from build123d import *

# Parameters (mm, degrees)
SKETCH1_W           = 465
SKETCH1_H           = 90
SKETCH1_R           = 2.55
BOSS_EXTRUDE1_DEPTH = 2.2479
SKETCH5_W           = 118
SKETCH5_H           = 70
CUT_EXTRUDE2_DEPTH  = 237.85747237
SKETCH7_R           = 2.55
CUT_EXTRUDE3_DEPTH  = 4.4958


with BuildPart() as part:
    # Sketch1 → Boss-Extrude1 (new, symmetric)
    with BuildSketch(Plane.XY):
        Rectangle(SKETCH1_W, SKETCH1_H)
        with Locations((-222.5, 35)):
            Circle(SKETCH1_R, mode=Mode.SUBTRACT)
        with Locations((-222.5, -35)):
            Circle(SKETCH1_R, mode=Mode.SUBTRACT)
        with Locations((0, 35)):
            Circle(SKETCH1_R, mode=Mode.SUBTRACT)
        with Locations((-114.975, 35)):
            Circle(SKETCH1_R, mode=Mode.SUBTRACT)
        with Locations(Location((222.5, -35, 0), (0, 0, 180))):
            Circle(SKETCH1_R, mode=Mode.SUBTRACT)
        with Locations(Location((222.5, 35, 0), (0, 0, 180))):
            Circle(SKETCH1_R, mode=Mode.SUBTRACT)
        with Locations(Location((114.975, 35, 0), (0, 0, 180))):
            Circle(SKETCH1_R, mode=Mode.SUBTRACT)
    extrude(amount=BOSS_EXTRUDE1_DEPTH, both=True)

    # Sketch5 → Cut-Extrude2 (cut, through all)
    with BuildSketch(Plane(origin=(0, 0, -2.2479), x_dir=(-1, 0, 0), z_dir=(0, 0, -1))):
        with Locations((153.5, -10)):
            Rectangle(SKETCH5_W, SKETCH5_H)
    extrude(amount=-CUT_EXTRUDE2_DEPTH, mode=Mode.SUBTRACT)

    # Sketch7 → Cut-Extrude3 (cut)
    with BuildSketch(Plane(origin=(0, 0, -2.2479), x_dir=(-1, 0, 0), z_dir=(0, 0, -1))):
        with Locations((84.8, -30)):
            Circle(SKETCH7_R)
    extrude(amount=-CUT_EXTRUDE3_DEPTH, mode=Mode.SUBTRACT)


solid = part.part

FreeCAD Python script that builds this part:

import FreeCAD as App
import Part
import Sketcher


def add_polygon(sketch, points):
    """Adds a closed chain of lines whose ends are joined by coincident constraints."""
    first, n = sketch.GeometryCount, len(points)
    for a, b in zip(points, points[1:] + points[:1]):
        sketch.addGeometry(Part.LineSegment(App.Vector(*a, 0), App.Vector(*b, 0)), False)
    for i in range(n):
        sketch.addConstraint(Sketcher.Constraint("Coincident", first + i, 2, first + (i + 1) % n, 1))

doc = App.newDocument("Part")
body = doc.addObject("PartDesign::Body", "Body")

# Sketch on XY plane
sketch1 = body.newObject("Sketcher::SketchObject", "Sketch")
sketch1.AttachmentSupport = (doc.getObject("XY_Plane"), [""])
sketch1.MapMode = "FlatFace"
add_polygon(sketch1, [(-232.5, 45), (-232.5, -45), (232.5, -45), (232.5, 45)])  # lines 0-3
sketch1.addGeometry(Part.Circle(App.Vector(-222.5, -35, 0), App.Vector(0, 0, 1), 2.55), False)  # 4
sketch1.addGeometry(Part.Circle(App.Vector(222.5, -35, 0), App.Vector(0, 0, 1), 2.55), False)  # 5
sketch1.addGeometry(Part.Circle(App.Vector(-222.5, 35, 0), App.Vector(0, 0, 1), 2.55), False)  # 6
sketch1.addGeometry(Part.Circle(App.Vector(-114.975, 35, 0), App.Vector(0, 0, 1), 2.55), False)  # 7
sketch1.addGeometry(Part.Circle(App.Vector(0, 35, 0), App.Vector(0, 0, 1), 2.55), False)  # 8
sketch1.addGeometry(Part.Circle(App.Vector(114.975, 35, 0), App.Vector(0, 0, 1), 2.55), False)  # 9
sketch1.addGeometry(Part.Circle(App.Vector(222.5, 35, 0), App.Vector(0, 0, 1), 2.55), False)  # 10
sketch1.addConstraint([
    Sketcher.Constraint("Vertical", 0),
    Sketcher.Constraint("Horizontal", 1),
    Sketcher.Constraint("Vertical", 2),
    Sketcher.Constraint("Horizontal", 3),
    Sketcher.Constraint("Equal", 4, 5),
    Sketcher.Constraint("Equal", 5, 6),
    Sketcher.Constraint("Equal", 6, 7),
    Sketcher.Constraint("Equal", 7, 8),
    Sketcher.Constraint("Equal", 8, 9),
    Sketcher.Constraint("Equal", 9, 10),
    Sketcher.Constraint("Symmetric", 5, 3, 6, 3, -1, 1),
    Sketcher.Constraint("Symmetric", 4, 3, 10, 3, -1, 1),
    Sketcher.Constraint("Symmetric", 0, 2, 2, 2, -1, 1),
    Sketcher.Constraint("Symmetric", 4, 3, 5, 3, -2),
    Sketcher.Constraint("Symmetric", 7, 3, 9, 3, -2),
    Sketcher.Constraint("PointOnObject", 8, 3, -2),
    Sketcher.Constraint("Horizontal", 6, 3, 7, 3),
    Sketcher.Constraint("Horizontal", 7, 3, 8, 3),
    Sketcher.Constraint("Diameter", 4, 5.1),
    Sketcher.Constraint("DistanceX", 1, 1, 1, 2, 465.0),
    Sketcher.Constraint("DistanceY", 0, 2, 0, 1, 90.0),
    Sketcher.Constraint("DistanceY", 4, 3, -1, 1, 35.0),
    Sketcher.Constraint("DistanceX", 4, 3, 5, 3, 445.0),
    Sketcher.Constraint("DistanceX", 7, 3, 9, 3, 229.95),
])
pad1 = body.newObject("PartDesign::Pad", "Pad")
pad1.Profile = sketch1
pad1.Length = 4.4958
pad1.Midplane = True

# Sketch on XY plane
sketch2 = body.newObject("Sketcher::SketchObject", "Sketch001")
sketch2.AttachmentSupport = (doc.getObject("XY_Plane"), [""])
sketch2.MapMode = "FlatFace"
sketch2.AttachmentOffset = App.Placement(App.Vector(0, 0, -2.2479), App.Rotation())
add_polygon(sketch2, [(-94.5, 25), (-94.5, -45), (-212.5, -45), (-212.5, 25)])  # lines 0-3
sketch2.addConstraint([
    Sketcher.Constraint("Vertical", 0),
    Sketcher.Constraint("Horizontal", 1),
    Sketcher.Constraint("Vertical", 2),
    Sketcher.Constraint("Horizontal", 3),
    Sketcher.Constraint("DistanceX", 1, 2, 1, 1, 118.0),
    Sketcher.Constraint("DistanceY", 0, 2, 0, 1, 70.0),
    Sketcher.Constraint("DistanceY", 0, 2, -1, 1, 45.0),
    Sketcher.Constraint("DistanceX", 0, 2, -1, 1, 94.5),
])
pocket1 = body.newObject("PartDesign::Pocket", "Pocket")
pocket1.Profile = sketch2
pocket1.Type = "ThroughAll"
pocket1.Reversed = True

# Sketch on XY plane
sketch3 = body.newObject("Sketcher::SketchObject", "Sketch002")
sketch3.AttachmentSupport = (doc.getObject("XY_Plane"), [""])
sketch3.MapMode = "FlatFace"
sketch3.AttachmentOffset = App.Placement(App.Vector(0, 0, -2.2479), App.Rotation())
sketch3.addGeometry(Part.Circle(App.Vector(-84.8, -30, 0), App.Vector(0, 0, 1), 2.55), False)
sketch3.addConstraint([
    Sketcher.Constraint("Diameter", 0, 5.1),
    Sketcher.Constraint("DistanceY", 0, 3, -1, 1, 30.0),
    Sketcher.Constraint("DistanceX", 0, 3, -1, 1, 84.8),
])
pocket2 = body.newObject("PartDesign::Pocket", "Pocket001")
pocket2.Profile = sketch3
pocket2.Length = 4.4958
pocket2.Reversed = True

doc.recompute()
